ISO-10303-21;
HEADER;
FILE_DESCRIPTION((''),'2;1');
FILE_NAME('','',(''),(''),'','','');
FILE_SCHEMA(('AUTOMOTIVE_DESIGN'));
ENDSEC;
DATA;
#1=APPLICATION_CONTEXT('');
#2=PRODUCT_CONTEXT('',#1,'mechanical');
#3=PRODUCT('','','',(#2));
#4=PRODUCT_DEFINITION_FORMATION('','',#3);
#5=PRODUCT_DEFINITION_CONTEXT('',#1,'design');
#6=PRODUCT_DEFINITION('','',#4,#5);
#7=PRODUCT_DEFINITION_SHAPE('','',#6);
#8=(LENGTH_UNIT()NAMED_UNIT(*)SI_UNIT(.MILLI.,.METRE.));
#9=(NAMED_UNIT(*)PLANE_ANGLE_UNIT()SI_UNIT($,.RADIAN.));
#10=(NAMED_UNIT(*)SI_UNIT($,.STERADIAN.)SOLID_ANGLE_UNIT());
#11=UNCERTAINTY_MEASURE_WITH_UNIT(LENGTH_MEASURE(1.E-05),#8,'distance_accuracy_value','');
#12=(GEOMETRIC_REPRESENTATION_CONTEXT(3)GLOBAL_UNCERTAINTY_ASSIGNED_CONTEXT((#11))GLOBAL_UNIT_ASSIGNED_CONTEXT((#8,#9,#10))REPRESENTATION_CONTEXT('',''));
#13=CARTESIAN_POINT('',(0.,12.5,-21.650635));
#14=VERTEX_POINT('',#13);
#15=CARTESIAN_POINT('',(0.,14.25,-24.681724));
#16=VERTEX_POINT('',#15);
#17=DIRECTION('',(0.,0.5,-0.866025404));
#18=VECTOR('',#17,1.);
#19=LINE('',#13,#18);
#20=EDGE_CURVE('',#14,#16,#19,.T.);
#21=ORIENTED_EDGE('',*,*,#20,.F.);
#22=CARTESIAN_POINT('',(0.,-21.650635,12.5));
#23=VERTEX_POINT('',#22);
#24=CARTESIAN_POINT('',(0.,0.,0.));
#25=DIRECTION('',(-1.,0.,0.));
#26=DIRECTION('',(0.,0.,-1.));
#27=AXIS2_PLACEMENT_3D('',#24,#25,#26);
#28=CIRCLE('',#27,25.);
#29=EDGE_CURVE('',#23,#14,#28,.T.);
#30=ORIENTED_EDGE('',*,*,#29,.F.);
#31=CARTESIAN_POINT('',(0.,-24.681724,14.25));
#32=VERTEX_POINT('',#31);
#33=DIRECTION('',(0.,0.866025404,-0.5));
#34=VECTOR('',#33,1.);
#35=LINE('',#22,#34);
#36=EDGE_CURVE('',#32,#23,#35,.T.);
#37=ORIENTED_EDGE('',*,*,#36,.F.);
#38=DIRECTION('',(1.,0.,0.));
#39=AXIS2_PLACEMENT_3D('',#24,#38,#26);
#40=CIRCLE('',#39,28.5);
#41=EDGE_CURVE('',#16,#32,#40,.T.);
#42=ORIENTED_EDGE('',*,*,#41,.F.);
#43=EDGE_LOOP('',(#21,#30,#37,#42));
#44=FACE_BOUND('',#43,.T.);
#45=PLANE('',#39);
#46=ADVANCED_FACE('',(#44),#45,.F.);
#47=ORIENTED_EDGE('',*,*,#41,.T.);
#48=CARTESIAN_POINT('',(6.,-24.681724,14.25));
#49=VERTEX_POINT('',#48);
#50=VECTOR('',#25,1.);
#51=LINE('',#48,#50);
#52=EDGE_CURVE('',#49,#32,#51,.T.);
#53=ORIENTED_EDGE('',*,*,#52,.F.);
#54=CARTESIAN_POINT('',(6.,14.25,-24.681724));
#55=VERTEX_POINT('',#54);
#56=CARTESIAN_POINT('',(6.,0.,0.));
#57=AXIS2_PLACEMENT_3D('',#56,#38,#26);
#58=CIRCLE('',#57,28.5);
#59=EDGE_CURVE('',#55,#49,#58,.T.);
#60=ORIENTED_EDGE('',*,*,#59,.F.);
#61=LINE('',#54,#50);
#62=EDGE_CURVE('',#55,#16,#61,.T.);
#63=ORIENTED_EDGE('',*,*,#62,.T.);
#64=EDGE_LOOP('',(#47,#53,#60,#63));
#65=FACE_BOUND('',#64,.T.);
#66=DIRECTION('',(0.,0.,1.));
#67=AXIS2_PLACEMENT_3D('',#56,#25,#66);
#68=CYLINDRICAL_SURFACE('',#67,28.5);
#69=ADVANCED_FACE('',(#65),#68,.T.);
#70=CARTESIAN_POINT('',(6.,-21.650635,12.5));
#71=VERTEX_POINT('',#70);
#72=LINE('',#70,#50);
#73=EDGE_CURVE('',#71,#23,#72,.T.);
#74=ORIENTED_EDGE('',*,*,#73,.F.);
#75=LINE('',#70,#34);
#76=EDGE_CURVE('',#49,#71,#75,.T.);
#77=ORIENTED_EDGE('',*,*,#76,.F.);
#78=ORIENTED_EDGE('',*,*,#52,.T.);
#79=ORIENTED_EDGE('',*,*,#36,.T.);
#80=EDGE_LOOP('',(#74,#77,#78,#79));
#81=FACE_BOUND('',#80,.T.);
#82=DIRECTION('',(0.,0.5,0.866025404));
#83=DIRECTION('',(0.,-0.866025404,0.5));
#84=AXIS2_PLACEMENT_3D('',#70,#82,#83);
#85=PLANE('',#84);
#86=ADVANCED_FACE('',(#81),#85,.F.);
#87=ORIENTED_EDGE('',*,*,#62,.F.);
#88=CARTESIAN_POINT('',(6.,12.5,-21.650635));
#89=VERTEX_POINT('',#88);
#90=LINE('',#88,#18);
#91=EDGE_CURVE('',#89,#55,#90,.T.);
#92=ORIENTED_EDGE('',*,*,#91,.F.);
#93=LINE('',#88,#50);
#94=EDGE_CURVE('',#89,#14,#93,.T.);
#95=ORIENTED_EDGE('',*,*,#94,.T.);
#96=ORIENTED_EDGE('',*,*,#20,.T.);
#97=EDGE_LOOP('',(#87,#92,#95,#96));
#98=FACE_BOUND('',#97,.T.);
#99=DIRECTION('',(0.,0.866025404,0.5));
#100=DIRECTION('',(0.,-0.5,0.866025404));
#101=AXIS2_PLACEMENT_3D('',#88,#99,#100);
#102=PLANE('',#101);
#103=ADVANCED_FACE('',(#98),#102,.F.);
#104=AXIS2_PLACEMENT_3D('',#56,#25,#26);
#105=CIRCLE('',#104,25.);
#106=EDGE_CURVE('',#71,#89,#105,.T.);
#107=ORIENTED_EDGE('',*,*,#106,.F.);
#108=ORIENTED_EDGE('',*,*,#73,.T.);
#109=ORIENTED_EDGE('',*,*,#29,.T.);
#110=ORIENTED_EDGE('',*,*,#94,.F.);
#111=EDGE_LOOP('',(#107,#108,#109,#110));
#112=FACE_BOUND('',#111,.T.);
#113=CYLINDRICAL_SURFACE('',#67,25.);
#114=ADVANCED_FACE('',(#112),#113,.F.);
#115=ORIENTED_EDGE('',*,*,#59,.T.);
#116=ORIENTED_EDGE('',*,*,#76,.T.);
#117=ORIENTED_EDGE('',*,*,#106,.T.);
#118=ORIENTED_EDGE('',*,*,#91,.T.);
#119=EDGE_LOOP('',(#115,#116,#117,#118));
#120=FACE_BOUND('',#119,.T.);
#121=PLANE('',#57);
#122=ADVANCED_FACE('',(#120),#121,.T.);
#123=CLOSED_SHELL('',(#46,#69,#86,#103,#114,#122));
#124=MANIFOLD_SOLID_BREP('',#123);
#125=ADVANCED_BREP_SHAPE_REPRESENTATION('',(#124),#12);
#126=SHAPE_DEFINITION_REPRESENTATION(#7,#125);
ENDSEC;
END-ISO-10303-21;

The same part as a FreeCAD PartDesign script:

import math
import FreeCAD as App
import Part
import Sketcher
Q = App.Units.Quantity

doc = App.newDocument("Part")
params = doc.addObject("Spreadsheet::Sheet", "Params")
for row, (alias, value) in enumerate([
    ("sketch1_radius", "25 mm"),
    ("sketch1_radius2", "28.5 mm"),
    ("pad1_length", "6 mm"),
], start=1):
    params.set(f"A{row}", alias)
    params.set(f"B{row}", "=" + value)
    params.setAlias(f"B{row}", alias)

body = doc.addObject("PartDesign::Body", "Body")

# Sketch on YZ plane
sketch1 = body.newObject("Sketcher::SketchObject", "Sketch")
sketch1.AttachmentSupport = (doc.getObject("YZ_Plane"), [""])
sketch1.MapMode = "FlatFace"
sketch1.addGeometry([
    Part.LineSegment(App.Vector(-24.7, 14.2, 0), App.Vector(-21.7, 12.5, 0)),
    Part.ArcOfCircle(Part.Circle(App.Vector(0, 0, 0), App.Vector(0, 0, 1), 25), math.radians(-60), math.radians(150)),
    Part.LineSegment(App.Vector(12.5, -21.7, 0), App.Vector(14.2, -24.7, 0)),
    Part.ArcOfCircle(Part.Circle(App.Vector(0, 0, 0), App.Vector(0, 0, 1), 28.5), math.radians(-60), math.radians(150)),
], False)
sketch1.addConstraint([
    Sketcher.Constraint("Coincident", 0, 2, 1, 2),
    Sketcher.Constraint("Coincident", 1, 1, 2, 1),
    Sketcher.Constraint("Coincident", 2, 2, 3, 1),
    Sketcher.Constraint("Coincident", 3, 2, 0, 1),
    Sketcher.Constraint("Coincident", 1, 3, -1, 1),
    Sketcher.Constraint("Coincident", 3, 3, -1, 1),
    Sketcher.Constraint("Radius", 1, Q("25 mm")),
    Sketcher.Constraint("Radius", 3, Q("28.5 mm")),
    Sketcher.Constraint("Angle", 0, Q("-30 deg")),
    Sketcher.Constraint("Angle", 2, Q("-60 deg")),
    Sketcher.Constraint("DistanceY", -1, 1, 0, 2, Q("12.5 mm")),
    Sketcher.Constraint("DistanceX", -1, 1, 1, 1, Q("12.5 mm")),
])
sketch1.setExpression("Constraints[6]", "Params.sketch1_radius")
sketch1.setExpression("Constraints[7]", "Params.sketch1_radius2")
pad1 = body.newObject("PartDesign::Pad", "Pad")
pad1.Profile = sketch1
pad1.setExpression("Length", "Params.pad1_length")

doc.recompute()
